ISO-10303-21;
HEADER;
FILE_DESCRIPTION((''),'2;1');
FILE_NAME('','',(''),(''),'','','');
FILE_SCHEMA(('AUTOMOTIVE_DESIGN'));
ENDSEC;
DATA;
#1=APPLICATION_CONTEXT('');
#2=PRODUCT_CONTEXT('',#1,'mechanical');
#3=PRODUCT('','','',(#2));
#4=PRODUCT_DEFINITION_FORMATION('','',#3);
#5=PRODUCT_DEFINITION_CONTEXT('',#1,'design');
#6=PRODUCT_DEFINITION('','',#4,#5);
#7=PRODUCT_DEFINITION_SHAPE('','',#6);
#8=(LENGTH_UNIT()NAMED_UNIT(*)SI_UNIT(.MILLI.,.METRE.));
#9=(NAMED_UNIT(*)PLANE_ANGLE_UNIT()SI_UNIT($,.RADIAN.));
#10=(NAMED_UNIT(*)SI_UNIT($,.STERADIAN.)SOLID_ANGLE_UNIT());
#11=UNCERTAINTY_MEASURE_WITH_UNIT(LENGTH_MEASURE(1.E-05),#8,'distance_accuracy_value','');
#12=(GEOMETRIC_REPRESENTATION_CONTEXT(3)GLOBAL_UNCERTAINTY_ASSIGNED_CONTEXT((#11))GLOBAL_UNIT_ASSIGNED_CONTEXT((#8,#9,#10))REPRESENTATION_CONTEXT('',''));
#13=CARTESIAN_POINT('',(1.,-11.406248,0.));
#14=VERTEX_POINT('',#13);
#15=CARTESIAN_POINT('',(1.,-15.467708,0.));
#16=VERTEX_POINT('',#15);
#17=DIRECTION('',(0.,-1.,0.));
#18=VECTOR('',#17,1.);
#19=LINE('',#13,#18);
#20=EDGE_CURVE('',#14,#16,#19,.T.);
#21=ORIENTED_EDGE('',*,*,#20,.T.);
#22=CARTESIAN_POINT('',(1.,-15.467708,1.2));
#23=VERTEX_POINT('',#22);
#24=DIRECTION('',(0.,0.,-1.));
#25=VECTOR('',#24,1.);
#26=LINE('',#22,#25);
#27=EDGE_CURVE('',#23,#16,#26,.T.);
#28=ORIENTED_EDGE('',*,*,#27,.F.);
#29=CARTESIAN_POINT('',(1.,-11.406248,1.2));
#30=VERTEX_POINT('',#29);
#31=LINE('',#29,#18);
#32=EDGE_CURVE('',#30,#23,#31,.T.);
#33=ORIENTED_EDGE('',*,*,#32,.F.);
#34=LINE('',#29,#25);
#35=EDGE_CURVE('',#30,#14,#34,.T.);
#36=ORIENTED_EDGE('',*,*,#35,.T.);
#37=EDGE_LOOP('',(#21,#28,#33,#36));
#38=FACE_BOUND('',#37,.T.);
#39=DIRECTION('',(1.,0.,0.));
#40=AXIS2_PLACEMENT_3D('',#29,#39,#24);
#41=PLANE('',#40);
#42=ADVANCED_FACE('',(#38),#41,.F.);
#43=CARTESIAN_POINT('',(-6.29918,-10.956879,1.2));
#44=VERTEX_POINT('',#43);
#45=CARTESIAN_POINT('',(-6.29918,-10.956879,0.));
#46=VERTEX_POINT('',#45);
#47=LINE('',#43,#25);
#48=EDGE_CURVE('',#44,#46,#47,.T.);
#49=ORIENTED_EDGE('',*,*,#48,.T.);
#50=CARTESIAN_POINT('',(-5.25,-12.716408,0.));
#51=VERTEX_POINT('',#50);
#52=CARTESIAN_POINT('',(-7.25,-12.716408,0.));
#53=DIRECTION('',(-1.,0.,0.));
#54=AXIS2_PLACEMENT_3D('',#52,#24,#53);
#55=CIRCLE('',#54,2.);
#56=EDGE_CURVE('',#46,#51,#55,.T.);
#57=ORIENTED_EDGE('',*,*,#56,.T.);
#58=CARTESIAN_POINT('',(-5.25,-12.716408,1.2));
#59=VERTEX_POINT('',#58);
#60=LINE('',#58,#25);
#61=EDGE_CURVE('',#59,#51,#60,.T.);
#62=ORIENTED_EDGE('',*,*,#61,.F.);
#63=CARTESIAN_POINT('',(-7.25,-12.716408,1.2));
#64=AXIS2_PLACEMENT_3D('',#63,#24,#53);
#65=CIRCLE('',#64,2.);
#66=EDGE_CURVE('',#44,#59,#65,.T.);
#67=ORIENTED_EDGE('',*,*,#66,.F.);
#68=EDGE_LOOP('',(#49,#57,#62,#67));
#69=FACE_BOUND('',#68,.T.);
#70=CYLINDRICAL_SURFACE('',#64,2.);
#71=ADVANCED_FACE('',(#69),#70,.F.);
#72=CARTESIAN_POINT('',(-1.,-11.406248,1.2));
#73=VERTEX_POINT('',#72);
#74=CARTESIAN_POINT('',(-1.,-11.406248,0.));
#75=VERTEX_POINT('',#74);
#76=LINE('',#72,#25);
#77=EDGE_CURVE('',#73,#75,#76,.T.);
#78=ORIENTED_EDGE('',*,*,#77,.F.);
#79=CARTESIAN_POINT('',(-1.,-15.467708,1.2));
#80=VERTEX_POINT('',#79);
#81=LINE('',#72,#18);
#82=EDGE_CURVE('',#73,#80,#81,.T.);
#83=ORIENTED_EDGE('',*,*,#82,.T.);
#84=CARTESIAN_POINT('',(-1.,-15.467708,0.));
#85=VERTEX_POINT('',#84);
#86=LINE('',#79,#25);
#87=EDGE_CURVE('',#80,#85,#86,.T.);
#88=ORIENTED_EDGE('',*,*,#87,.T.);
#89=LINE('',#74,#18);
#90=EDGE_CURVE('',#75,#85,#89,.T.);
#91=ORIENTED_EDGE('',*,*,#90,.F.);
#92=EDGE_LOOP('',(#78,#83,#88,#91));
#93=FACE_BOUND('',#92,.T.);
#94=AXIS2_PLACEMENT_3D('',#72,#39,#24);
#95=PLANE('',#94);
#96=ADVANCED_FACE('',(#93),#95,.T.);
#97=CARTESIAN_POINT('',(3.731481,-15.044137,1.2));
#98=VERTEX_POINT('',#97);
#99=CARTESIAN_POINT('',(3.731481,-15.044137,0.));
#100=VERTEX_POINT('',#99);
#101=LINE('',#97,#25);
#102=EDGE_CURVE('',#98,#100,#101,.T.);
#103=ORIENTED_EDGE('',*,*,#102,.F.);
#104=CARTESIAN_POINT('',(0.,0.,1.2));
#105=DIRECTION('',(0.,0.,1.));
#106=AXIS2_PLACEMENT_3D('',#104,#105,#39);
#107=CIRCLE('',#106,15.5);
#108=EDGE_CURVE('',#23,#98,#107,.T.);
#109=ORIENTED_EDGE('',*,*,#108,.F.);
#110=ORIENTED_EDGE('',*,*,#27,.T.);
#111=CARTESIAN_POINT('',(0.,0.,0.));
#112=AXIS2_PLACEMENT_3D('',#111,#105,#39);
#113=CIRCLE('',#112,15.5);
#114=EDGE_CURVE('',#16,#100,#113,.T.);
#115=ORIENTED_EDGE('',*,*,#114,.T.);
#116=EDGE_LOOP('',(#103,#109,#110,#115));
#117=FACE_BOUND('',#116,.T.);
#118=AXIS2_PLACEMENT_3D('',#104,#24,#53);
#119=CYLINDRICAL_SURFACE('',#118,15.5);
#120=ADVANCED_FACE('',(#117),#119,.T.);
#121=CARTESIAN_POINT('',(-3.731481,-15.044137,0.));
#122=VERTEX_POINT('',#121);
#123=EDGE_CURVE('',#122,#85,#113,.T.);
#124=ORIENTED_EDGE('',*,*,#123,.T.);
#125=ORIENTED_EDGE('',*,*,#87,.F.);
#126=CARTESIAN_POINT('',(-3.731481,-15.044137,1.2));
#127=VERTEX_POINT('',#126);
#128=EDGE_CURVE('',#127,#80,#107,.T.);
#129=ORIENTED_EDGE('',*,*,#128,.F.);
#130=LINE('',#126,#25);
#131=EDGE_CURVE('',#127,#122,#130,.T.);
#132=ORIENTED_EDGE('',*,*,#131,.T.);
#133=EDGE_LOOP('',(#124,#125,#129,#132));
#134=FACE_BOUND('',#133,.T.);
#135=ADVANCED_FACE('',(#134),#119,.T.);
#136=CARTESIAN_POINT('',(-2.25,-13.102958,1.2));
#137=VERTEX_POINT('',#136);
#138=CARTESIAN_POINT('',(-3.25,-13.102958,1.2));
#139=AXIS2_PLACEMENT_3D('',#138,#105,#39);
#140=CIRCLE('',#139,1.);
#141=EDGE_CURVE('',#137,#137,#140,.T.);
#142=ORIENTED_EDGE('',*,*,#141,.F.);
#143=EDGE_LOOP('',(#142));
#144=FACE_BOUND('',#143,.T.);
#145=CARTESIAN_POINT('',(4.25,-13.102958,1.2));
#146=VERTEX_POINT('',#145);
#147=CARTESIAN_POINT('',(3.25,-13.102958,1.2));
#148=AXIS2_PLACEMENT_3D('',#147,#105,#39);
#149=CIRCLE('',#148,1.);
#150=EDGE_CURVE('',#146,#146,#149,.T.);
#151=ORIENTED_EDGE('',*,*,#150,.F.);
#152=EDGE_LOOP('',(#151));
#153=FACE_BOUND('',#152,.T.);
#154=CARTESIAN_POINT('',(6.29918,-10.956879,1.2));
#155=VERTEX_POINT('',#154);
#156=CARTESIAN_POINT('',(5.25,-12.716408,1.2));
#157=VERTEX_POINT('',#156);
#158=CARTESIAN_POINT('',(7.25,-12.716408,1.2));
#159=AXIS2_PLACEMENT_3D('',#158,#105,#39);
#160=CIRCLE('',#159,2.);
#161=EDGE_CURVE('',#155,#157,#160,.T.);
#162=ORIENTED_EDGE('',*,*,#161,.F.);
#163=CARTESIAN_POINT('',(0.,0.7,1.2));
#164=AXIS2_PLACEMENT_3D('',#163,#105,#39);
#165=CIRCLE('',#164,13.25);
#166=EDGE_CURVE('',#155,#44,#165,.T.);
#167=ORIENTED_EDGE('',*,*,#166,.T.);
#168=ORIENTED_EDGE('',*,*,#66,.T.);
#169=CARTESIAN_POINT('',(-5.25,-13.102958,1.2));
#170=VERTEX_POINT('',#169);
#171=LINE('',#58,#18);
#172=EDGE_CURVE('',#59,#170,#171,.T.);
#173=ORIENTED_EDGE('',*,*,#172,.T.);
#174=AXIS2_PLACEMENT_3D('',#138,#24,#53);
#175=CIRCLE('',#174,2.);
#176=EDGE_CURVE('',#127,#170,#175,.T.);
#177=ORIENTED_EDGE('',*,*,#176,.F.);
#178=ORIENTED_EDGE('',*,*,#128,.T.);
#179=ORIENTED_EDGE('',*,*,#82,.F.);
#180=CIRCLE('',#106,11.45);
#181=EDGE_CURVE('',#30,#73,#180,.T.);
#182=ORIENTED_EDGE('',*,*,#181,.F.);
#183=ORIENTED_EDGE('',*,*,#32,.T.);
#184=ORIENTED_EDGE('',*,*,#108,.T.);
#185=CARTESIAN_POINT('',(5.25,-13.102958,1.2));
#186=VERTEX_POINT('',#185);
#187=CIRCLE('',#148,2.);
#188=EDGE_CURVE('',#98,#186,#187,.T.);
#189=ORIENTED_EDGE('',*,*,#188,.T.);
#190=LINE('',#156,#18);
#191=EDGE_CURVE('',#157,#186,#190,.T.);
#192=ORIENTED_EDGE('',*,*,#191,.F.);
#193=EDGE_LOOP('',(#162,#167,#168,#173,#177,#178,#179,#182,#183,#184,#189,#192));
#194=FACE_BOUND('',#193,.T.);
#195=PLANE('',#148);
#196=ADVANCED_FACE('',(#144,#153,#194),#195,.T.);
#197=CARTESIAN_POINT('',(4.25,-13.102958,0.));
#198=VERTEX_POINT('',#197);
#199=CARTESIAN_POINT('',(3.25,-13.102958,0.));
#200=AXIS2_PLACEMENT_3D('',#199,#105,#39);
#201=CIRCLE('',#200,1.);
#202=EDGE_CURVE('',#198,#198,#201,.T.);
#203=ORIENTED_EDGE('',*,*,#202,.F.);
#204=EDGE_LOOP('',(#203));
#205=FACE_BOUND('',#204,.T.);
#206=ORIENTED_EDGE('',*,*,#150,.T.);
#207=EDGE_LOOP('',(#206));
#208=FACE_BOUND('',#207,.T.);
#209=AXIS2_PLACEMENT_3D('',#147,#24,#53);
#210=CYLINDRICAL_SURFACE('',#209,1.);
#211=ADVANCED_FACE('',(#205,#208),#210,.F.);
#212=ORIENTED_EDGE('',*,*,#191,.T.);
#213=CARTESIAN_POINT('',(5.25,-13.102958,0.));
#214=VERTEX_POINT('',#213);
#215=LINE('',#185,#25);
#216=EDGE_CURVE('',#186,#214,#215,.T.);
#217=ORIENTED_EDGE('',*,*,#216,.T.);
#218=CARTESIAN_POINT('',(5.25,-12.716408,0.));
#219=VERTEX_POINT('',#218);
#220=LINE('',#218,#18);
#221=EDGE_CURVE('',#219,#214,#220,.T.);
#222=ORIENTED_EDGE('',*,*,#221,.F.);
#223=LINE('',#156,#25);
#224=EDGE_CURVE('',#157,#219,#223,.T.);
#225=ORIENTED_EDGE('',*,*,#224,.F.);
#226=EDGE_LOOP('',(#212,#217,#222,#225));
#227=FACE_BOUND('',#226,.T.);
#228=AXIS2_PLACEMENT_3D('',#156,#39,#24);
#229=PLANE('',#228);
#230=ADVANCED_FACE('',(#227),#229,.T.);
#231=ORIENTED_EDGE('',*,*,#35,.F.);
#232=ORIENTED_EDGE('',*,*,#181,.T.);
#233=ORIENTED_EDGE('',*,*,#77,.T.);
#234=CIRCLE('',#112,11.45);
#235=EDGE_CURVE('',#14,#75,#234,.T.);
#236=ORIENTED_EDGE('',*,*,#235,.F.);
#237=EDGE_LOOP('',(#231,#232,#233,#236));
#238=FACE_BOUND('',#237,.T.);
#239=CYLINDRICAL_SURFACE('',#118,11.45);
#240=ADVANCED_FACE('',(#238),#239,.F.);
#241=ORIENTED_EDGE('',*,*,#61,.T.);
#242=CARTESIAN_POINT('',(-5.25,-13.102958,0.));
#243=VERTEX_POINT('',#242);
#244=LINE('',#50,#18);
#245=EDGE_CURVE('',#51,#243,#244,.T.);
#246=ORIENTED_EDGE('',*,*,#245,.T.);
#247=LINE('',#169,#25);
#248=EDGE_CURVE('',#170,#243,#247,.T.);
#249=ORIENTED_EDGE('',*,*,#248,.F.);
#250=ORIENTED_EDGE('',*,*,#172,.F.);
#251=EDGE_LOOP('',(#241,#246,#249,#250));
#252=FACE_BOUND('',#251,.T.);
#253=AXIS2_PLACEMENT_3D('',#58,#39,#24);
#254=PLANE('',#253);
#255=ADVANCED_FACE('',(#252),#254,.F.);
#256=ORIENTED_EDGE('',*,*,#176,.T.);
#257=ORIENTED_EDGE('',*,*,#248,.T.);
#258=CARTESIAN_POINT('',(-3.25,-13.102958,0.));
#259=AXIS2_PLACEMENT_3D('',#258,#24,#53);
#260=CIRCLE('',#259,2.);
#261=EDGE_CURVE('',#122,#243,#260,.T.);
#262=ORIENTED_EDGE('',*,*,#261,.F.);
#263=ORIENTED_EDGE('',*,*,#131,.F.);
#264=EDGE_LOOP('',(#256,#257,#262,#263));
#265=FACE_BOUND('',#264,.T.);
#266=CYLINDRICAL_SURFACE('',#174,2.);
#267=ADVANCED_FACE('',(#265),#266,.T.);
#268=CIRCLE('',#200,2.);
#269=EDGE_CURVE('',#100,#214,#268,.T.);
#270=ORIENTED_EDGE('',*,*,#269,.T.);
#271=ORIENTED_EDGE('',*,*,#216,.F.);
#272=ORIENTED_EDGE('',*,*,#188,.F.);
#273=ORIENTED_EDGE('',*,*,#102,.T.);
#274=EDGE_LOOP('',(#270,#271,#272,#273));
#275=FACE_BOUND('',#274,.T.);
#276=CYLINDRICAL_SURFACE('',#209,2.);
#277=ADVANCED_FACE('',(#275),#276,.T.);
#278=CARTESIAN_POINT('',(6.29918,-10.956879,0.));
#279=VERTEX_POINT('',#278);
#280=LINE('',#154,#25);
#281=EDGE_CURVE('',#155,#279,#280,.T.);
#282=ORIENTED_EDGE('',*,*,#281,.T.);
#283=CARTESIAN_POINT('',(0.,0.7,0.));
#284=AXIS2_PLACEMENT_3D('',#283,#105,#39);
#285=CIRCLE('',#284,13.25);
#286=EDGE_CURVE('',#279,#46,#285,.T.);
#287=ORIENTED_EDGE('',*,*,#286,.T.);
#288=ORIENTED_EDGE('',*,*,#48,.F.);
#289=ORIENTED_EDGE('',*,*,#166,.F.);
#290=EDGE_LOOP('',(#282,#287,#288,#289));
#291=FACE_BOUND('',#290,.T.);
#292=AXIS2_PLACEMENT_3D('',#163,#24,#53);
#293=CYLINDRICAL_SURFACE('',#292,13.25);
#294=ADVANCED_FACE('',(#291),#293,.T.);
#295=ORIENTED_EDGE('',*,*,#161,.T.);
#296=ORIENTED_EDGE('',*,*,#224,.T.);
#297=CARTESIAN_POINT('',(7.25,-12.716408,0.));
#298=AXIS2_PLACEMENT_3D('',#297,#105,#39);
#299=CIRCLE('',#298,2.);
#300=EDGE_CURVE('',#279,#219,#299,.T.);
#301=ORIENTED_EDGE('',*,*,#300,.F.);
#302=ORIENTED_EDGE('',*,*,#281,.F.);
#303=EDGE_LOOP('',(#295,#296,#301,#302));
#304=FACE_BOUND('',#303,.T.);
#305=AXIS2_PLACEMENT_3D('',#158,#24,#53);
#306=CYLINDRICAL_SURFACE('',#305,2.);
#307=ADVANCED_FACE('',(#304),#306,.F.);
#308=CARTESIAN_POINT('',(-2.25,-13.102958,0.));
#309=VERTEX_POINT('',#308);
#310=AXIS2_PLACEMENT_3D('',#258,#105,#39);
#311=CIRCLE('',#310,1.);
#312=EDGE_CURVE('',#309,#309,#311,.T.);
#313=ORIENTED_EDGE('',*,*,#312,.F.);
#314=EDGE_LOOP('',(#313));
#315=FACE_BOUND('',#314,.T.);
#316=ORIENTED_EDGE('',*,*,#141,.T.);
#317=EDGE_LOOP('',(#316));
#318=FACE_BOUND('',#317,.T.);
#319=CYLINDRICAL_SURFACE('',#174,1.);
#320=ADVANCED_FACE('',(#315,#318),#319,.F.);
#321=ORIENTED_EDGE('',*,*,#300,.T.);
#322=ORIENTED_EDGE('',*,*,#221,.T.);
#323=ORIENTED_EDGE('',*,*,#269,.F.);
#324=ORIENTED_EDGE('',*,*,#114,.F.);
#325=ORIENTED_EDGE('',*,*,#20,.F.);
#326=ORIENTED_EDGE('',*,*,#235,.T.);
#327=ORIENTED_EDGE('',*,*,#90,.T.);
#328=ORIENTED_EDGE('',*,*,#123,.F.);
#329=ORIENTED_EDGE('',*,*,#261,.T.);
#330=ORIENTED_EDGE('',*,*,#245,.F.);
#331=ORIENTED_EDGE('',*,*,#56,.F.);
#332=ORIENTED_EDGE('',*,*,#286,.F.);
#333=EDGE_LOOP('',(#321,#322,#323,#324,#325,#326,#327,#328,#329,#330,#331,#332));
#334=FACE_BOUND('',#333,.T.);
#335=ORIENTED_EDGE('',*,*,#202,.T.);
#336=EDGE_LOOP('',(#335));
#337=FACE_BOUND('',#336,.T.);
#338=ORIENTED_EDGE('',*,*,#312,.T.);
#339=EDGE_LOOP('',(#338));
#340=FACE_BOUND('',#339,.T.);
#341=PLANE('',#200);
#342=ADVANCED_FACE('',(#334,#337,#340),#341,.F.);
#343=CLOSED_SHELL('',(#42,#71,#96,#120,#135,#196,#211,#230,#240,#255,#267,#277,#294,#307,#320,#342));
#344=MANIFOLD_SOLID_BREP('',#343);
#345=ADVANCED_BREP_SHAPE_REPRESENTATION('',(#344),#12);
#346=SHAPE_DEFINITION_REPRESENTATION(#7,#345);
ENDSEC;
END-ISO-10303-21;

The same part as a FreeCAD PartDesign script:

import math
import FreeCAD as App
import Part
import Sketcher

doc = App.newDocument("Part")
body = doc.addObject("PartDesign::Body", "Body")

# Sketch on XY plane
sketch1 = body.newObject("Sketcher::SketchObject", "Sketch")
sketch1.AttachmentSupport = (doc.getObject("XY_Plane"), [""])
sketch1.MapMode = "FlatFace"
sketch1.addGeometry(Part.LineSegment(App.Vector(-1, -15.467708, 0), App.Vector(-1, -11.406248, 0)), False)
sketch1.addGeometry(Part.ArcOfCircle(Part.Circle(App.Vector(0, 0, 0), App.Vector(0, 0, 1), 11.45), math.radians(-84.989618), math.radians(264.989618)), False)
sketch1.addGeometry(Part.LineSegment(App.Vector(1, -11.406248, 0), App.Vector(1, -15.467708, 0)), False)
sketch1.addGeometry(Part.ArcOfCircle(Part.Circle(App.Vector(0, 0, 0), App.Vector(0, 0, 1), 15.5), math.radians(-86.300929), math.radians(-76.069736)), False)
sketch1.addGeometry(Part.ArcOfCircle(Part.Circle(App.Vector(3.25, -13.102958, 0), App.Vector(0, 0, 1), 2), math.radians(-76.069736), math.radians(0)), False)
sketch1.addGeometry(Part.LineSegment(App.Vector(5.25, -13.102958, 0), App.Vector(5.25, -12.716408, 0)), False)
sketch1.addGeometry(Part.ArcOfCircle(Part.Circle(App.Vector(7.25, -12.716408, 0), App.Vector(0, 0, 1), 2), math.radians(118.386038), math.radians(180)), False)
sketch1.addGeometry(Part.ArcOfCircle(Part.Circle(App.Vector(0, 0.7, 0), App.Vector(0, 0, 1), 13.25), math.radians(-61.613962), math.radians(241.613962)), False)
sketch1.addGeometry(Part.ArcOfCircle(Part.Circle(App.Vector(-7.25, -12.716408, 0), App.Vector(0, 0, 1), 2), math.radians(0), math.radians(61.613962)), False)
sketch1.addGeometry(Part.LineSegment(App.Vector(-5.25, -12.716408, 0), App.Vector(-5.25, -13.102958, 0)), False)
sketch1.addGeometry(Part.ArcOfCircle(Part.Circle(App.Vector(-3.25, -13.102958, 0), App.Vector(0, 0, 1), 2), math.radians(-180), math.radians(-103.930264)), False)
sketch1.addGeometry(Part.ArcOfCircle(Part.Circle(App.Vector(0, 0, 0), App.Vector(0, 0, 1), 15.5), math.radians(-103.930264), math.radians(-93.699071)), False)
sketch1.addGeometry(Part.Circle(App.Vector(3.25, -13.102958, 0), App.Vector(0, 0, 1), 1), False)
sketch1.addGeometry(Part.Circle(App.Vector(-3.25, -13.102958, 0), App.Vector(0, 0, 1), 1), False)
sketch1.addConstraint(Sketcher.Constraint("Coincident", 0, 2, 1, 2))
sketch1.addConstraint(Sketcher.Constraint("Coincident", 1, 1, 2, 1))
sketch1.addConstraint(Sketcher.Constraint("Coincident", 2, 2, 3, 1))
sketch1.addConstraint(Sketcher.Constraint("Tangent", 3, 2, 4, 1))
sketch1.addConstraint(Sketcher.Constraint("Tangent", 4, 2, 5, 1))
sketch1.addConstraint(Sketcher.Constraint("Tangent", 5, 2, 6, 2))
sketch1.addConstraint(Sketcher.Constraint("Tangent", 6, 1, 7, 1))
sketch1.addConstraint(Sketcher.Constraint("Tangent", 7, 2, 8, 2))
sketch1.addConstraint(Sketcher.Constraint("Tangent", 8, 1, 9, 1))
sketch1.addConstraint(Sketcher.Constraint("Tangent", 9, 2, 10, 1))
sketch1.addConstraint(Sketcher.Constraint("Tangent", 10, 2, 11, 1))
sketch1.addConstraint(Sketcher.Constraint("Coincident", 11, 2, 0, 1))
sketch1.addConstraint(Sketcher.Constraint("Vertical", 0))
sketch1.addConstraint(Sketcher.Constraint("Vertical", 2))
sketch1.addConstraint(Sketcher.Constraint("Vertical", 5))
sketch1.addConstraint(Sketcher.Constraint("Vertical", 9))
sketch1.addConstraint(Sketcher.Constraint("Coincident", 1, 3, -1, 1))
sketch1.addConstraint(Sketcher.Constraint("Coincident", 3, 3, -1, 1))
sketch1.addConstraint(Sketcher.Constraint("Coincident", 11, 3, -1, 1))
sketch1.addConstraint(Sketcher.Constraint("Coincident", 12, 3, 4, 3))
sketch1.addConstraint(Sketcher.Constraint("Coincident", 13, 3, 10, 3))
sketch1.addConstraint(Sketcher.Constraint("Equal", 4, 6))
sketch1.addConstraint(Sketcher.Constraint("Equal", 6, 8))
sketch1.addConstraint(Sketcher.Constraint("Equal", 8, 10))
sketch1.addConstraint(Sketcher.Constraint("Equal", 3, 11))
sketch1.addConstraint(Sketcher.Constraint("Equal", 12, 13))
sketch1.addConstraint(Sketcher.Constraint("Symmetric", 6, 3, 8, 3, -2))
sketch1.addConstraint(Sketcher.Constraint("Horizontal", 0, 2, 1, 1))
sketch1.addConstraint(Sketcher.Constraint("Diameter", 12, 2.0))
sketch1.addConstraint(Sketcher.Constraint("Radius", 4, 2.0))
sketch1.addConstraint(Sketcher.Constraint("Radius", 3, 15.5))
sketch1.addConstraint(Sketcher.Constraint("Radius", 1, 11.45))
sketch1.addConstraint(Sketcher.Constraint("Radius", 7, 13.25))
sketch1.addConstraint(Sketcher.Constraint("DistanceX", 0, 2, -1, 1, 1.0))
sketch1.addConstraint(Sketcher.Constraint("DistanceY", -1, 1, 7, 3, 0.7))
sketch1.addConstraint(Sketcher.Constraint("DistanceX", 8, 3, 4, 3, 10.5))
pad1 = body.newObject("PartDesign::Pad", "Pad")
pad1.Profile = sketch1
pad1.Length = 1.2

doc.recompute()
